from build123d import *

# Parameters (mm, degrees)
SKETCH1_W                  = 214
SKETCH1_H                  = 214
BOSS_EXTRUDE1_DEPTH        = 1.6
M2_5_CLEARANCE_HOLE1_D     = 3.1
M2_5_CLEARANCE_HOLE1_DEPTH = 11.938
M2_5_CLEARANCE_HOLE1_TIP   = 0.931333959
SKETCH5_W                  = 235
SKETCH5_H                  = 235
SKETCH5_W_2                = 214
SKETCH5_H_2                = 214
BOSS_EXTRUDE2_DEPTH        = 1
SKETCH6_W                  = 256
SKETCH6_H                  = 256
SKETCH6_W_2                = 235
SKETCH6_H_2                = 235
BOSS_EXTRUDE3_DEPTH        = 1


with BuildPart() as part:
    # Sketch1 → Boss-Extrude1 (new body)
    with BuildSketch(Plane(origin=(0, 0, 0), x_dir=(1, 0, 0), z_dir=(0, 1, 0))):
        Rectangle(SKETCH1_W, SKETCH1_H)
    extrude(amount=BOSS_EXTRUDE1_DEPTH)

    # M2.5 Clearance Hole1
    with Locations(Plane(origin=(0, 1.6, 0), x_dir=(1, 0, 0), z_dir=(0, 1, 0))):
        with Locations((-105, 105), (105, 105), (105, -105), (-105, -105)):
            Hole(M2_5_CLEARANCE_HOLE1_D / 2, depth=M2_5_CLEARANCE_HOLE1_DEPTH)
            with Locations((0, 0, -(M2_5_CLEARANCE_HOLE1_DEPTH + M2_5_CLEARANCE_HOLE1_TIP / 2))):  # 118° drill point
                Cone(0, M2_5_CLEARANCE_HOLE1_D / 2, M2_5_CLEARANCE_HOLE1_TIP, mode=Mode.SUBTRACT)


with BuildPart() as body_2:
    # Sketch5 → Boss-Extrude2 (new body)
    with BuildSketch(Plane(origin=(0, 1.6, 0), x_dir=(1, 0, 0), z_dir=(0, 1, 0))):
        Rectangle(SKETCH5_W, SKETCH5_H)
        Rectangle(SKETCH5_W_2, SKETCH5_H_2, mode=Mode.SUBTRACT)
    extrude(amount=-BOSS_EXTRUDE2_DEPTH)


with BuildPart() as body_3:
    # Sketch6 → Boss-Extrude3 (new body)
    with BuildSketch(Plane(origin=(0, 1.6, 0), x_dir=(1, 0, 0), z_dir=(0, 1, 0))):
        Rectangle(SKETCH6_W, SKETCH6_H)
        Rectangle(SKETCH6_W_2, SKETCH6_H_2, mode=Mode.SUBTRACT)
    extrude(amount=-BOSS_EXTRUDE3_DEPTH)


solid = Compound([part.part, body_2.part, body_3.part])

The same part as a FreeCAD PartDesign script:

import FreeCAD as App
import Part
import Sketcher
from FreeCAD import Vector

doc = App.newDocument("Part")
body = doc.addObject("PartDesign::Body", "Body")

# Sketch on XZ plane
sketch1 = body.newObject("Sketcher::SketchObject", "Sketch")
sketch1.AttachmentSupport = (doc.getObject("XZ_Plane"), [""])
sketch1.MapMode = "FlatFace"
sketch1.addGeometry(Part.LineSegment(Vector(-107, -107, 0), Vector(-107, 107, 0)), False)
sketch1.addGeometry(Part.LineSegment(Vector(-107, 107, 0), Vector(107, 107, 0)), False)
sketch1.addGeometry(Part.LineSegment(Vector(107, 107, 0), Vector(107, -107, 0)), False)
sketch1.addGeometry(Part.LineSegment(Vector(107, -107, 0), Vector(-107, -107, 0)), False)
sketch1.addConstraint(Sketcher.Constraint("Coincident", 0, 2, 1, 1))
sketch1.addConstraint(Sketcher.Constraint("Coincident", 1, 2, 2, 1))
sketch1.addConstraint(Sketcher.Constraint("Coincident", 2, 2, 3, 1))
sketch1.addConstraint(Sketcher.Constraint("Coincident", 3, 2, 0, 1))
sketch1.addConstraint(Sketcher.Constraint("Vertical", 0))
sketch1.addConstraint(Sketcher.Constraint("Horizontal", 1))
sketch1.addConstraint(Sketcher.Constraint("Vertical", 2))
sketch1.addConstraint(Sketcher.Constraint("Horizontal", 3))
sketch1.addConstraint(Sketcher.Constraint("Symmetric", 0, 2, 2, 2, -1, 1))
sketch1.addConstraint(Sketcher.Constraint("Equal", 3, 0))
sketch1.addConstraint(Sketcher.Constraint("DistanceX", 1, 1, 1, 2, 214.0))
pad1 = body.newObject("PartDesign::Pad", "Pad")
pad1.Profile = sketch1
pad1.Length = 1.6
pad1.Reversed = True

# Sketch on XZ plane
sketch2 = body.newObject("Sketcher::SketchObject", "Sketch001")
sketch2.AttachmentSupport = (doc.getObject("XZ_Plane"), [""])
sketch2.MapMode = "FlatFace"
sketch2.AttachmentOffset = App.Placement(Vector(0, 0, -1.6), App.Rotation())
sketch2.addGeometry(Part.Circle(Vector(-105, -105, 0), Vector(0, 0, 1), 1.6), False)
sketch2.addGeometry(Part.Circle(Vector(105, -105, 0), Vector(0, 0, 1), 1.6), False)
sketch2.addGeometry(Part.Circle(Vector(105, 105, 0), Vector(0, 0, 1), 1.6), False)
sketch2.addGeometry(Part.Circle(Vector(-105, 105, 0), Vector(0, 0, 1), 1.6), False)
sketch2.addConstraint(Sketcher.Constraint("Equal", 0, 1))
sketch2.addConstraint(Sketcher.Constraint("Equal", 1, 2))
sketch2.addConstraint(Sketcher.Constraint("Equal", 2, 3))
sketch2.addConstraint(Sketcher.Constraint("Symmetric", 0, 3, 2, 3, -1, 1))
sketch2.addConstraint(Sketcher.Constraint("Symmetric", 1, 3, 3, 3, -1, 1))
sketch2.addConstraint(Sketcher.Constraint("Symmetric", 0, 3, 1, 3, -2))
sketch2.addConstraint(Sketcher.Constraint("Diameter", 0, 3.1))
sketch2.addConstraint(Sketcher.Constraint("DistanceX", 0, 3, -1, 1, 105.0))
sketch2.addConstraint(Sketcher.Constraint("DistanceY", 0, 3, -1, 1, 105.0))
doc.recompute()
hole = body.newObject("PartDesign::Hole", "Hole")
hole.Profile = sketch2
hole.ThreadType = "None"
hole.Diameter = 3.1
hole.DepthType = "Dimension"
hole.Depth = 11.938
hole.DrillPoint = "Angled"
hole.DrillPointAngle = 118
hole.Reversed = True
body2 = doc.addObject("PartDesign::Body", "Body001")

# Sketch on XZ plane
sketch3 = body2.newObject("Sketcher::SketchObject", "Sketch002")
sketch3.AttachmentSupport = (doc.getObject("XZ_Plane001"), [""])
sketch3.MapMode = "FlatFace"
sketch3.AttachmentOffset = App.Placement(Vector(0, 0, -1.6), App.Rotation())
sketch3.addGeometry(Part.LineSegment(Vector(-118, -118, 0), Vector(-118, 118, 0)), False)
sketch3.addGeometry(Part.LineSegment(Vector(-118, 118, 0), Vector(118, 118, 0)), False)
sketch3.addGeometry(Part.LineSegment(Vector(118, 118, 0), Vector(118, -118, 0)), False)
sketch3.addGeometry(Part.LineSegment(Vector(118, -118, 0), Vector(-118, -118, 0)), False)
sketch3.addGeometry(Part.LineSegment(Vector(107, 107, 0), Vector(-107, 107, 0)), False)
sketch3.addGeometry(Part.LineSegment(Vector(-107, 107, 0), Vector(-107, -107, 0)), False)
sketch3.addGeometry(Part.LineSegment(Vector(-107, -107, 0), Vector(107, -107, 0)), False)
sketch3.addGeometry(Part.LineSegment(Vector(107, -107, 0), Vector(107, 107, 0)), False)
sketch3.addConstraint(Sketcher.Constraint("Coincident", 0, 2, 1, 1))
sketch3.addConstraint(Sketcher.Constraint("Coincident", 1, 2, 2, 1))
sketch3.addConstraint(Sketcher.Constraint("Coincident", 2, 2, 3, 1))
sketch3.addConstraint(Sketcher.Constraint("Coincident", 3, 2, 0, 1))
sketch3.addConstraint(Sketcher.Constraint("Coincident", 4, 2, 5, 1))
sketch3.addConstraint(Sketcher.Constraint("Coincident", 5, 2, 6, 1))
sketch3.addConstraint(Sketcher.Constraint("Coincident", 6, 2, 7, 1))
sketch3.addConstraint(Sketcher.Constraint("Coincident", 7, 2, 4, 1))
sketch3.addConstraint(Sketcher.Constraint("Vertical", 0))
sketch3.addConstraint(Sketcher.Constraint("Horizontal", 1))
sketch3.addConstraint(Sketcher.Constraint("Vertical", 2))
sketch3.addConstraint(Sketcher.Constraint("Horizontal", 3))
sketch3.addConstraint(Sketcher.Constraint("Horizontal", 4))
sketch3.addConstraint(Sketcher.Constraint("Vertical", 5))
sketch3.addConstraint(Sketcher.Constraint("Horizontal", 6))
sketch3.addConstraint(Sketcher.Constraint("Vertical", 7))
sketch3.addConstraint(Sketcher.Constraint("Symmetric", 0, 2, 2, 2, -1, 1))
sketch3.addConstraint(Sketcher.Constraint("Symmetric", 4, 2, 6, 2, -1, 1))
sketch3.addConstraint(Sketcher.Constraint("Equal", 3, 0))
sketch3.addConstraint(Sketcher.Constraint("Equal", 6, 5))
sketch3.addConstraint(Sketcher.Constraint("DistanceX", 1, 1, 1, 2, 235.0))
sketch3.addConstraint(Sketcher.Constraint("DistanceX", 4, 2, 4, 1, 214.0))
pad2 = body2.newObject("PartDesign::Pad", "Pad001")
pad2.Profile = sketch3
pad2.Length = 1
body3 = doc.addObject("PartDesign::Body", "Body002")

# Sketch on XZ plane
sketch4 = body3.newObject("Sketcher::SketchObject", "Sketch003")
sketch4.AttachmentSupport = (doc.getObject("XZ_Plane002"), [""])
sketch4.MapMode = "FlatFace"
sketch4.AttachmentOffset = App.Placement(Vector(0, 0, -1.6), App.Rotation())
sketch4.addGeometry(Part.LineSegment(Vector(-128, -128, 0), Vector(-128, 128, 0)), False)
sketch4.addGeometry(Part.LineSegment(Vector(-128, 128, 0), Vector(128, 128, 0)), False)
sketch4.addGeometry(Part.LineSegment(Vector(128, 128, 0), Vector(128, -128, 0)), False)
sketch4.addGeometry(Part.LineSegment(Vector(128, -128, 0), Vector(-128, -128, 0)), False)
sketch4.addGeometry(Part.LineSegment(Vector(118, 118, 0), Vector(-118, 118, 0)), False)
sketch4.addGeometry(Part.LineSegment(Vector(-118, 118, 0), Vector(-118, -118, 0)), False)
sketch4.addGeometry(Part.LineSegment(Vector(-118, -118, 0), Vector(118, -118, 0)), False)
sketch4.addGeometry(Part.LineSegment(Vector(118, -118, 0), Vector(118, 118, 0)), False)
sketch4.addConstraint(Sketcher.Constraint("Coincident", 0, 2, 1, 1))
sketch4.addConstraint(Sketcher.Constraint("Coincident", 1, 2, 2, 1))
sketch4.addConstraint(Sketcher.Constraint("Coincident", 2, 2, 3, 1))
sketch4.addConstraint(Sketcher.Constraint("Coincident", 3, 2, 0, 1))
sketch4.addConstraint(Sketcher.Constraint("Coincident", 4, 2, 5, 1))
sketch4.addConstraint(Sketcher.Constraint("Coincident", 5, 2, 6, 1))
sketch4.addConstraint(Sketcher.Constraint("Coincident", 6, 2, 7, 1))
sketch4.addConstraint(Sketcher.Constraint("Coincident", 7, 2, 4, 1))
sketch4.addConstraint(Sketcher.Constraint("Vertical", 0))
sketch4.addConstraint(Sketcher.Constraint("Horizontal", 1))
sketch4.addConstraint(Sketcher.Constraint("Vertical", 2))
sketch4.addConstraint(Sketcher.Constraint("Horizontal", 3))
sketch4.addConstraint(Sketcher.Constraint("Horizontal", 4))
sketch4.addConstraint(Sketcher.Constraint("Vertical", 5))
sketch4.addConstraint(Sketcher.Constraint("Horizontal", 6))
sketch4.addConstraint(Sketcher.Constraint("Vertical", 7))
sketch4.addConstraint(Sketcher.Constraint("Symmetric", 0, 2, 2, 2, -1, 1))
sketch4.addConstraint(Sketcher.Constraint("Symmetric", 4, 2, 6, 2, -1, 1))
sketch4.addConstraint(Sketcher.Constraint("Equal", 3, 0))
sketch4.addConstraint(Sketcher.Constraint("Equal", 6, 5))
sketch4.addConstraint(Sketcher.Constraint("DistanceX", 1, 1, 1, 2, 256.0))
sketch4.addConstraint(Sketcher.Constraint("DistanceX", 4, 2, 4, 1, 235.0))
pad3 = body3.newObject("PartDesign::Pad", "Pad002")
pad3.Profile = sketch4
pad3.Length = 1

doc.recompute()
